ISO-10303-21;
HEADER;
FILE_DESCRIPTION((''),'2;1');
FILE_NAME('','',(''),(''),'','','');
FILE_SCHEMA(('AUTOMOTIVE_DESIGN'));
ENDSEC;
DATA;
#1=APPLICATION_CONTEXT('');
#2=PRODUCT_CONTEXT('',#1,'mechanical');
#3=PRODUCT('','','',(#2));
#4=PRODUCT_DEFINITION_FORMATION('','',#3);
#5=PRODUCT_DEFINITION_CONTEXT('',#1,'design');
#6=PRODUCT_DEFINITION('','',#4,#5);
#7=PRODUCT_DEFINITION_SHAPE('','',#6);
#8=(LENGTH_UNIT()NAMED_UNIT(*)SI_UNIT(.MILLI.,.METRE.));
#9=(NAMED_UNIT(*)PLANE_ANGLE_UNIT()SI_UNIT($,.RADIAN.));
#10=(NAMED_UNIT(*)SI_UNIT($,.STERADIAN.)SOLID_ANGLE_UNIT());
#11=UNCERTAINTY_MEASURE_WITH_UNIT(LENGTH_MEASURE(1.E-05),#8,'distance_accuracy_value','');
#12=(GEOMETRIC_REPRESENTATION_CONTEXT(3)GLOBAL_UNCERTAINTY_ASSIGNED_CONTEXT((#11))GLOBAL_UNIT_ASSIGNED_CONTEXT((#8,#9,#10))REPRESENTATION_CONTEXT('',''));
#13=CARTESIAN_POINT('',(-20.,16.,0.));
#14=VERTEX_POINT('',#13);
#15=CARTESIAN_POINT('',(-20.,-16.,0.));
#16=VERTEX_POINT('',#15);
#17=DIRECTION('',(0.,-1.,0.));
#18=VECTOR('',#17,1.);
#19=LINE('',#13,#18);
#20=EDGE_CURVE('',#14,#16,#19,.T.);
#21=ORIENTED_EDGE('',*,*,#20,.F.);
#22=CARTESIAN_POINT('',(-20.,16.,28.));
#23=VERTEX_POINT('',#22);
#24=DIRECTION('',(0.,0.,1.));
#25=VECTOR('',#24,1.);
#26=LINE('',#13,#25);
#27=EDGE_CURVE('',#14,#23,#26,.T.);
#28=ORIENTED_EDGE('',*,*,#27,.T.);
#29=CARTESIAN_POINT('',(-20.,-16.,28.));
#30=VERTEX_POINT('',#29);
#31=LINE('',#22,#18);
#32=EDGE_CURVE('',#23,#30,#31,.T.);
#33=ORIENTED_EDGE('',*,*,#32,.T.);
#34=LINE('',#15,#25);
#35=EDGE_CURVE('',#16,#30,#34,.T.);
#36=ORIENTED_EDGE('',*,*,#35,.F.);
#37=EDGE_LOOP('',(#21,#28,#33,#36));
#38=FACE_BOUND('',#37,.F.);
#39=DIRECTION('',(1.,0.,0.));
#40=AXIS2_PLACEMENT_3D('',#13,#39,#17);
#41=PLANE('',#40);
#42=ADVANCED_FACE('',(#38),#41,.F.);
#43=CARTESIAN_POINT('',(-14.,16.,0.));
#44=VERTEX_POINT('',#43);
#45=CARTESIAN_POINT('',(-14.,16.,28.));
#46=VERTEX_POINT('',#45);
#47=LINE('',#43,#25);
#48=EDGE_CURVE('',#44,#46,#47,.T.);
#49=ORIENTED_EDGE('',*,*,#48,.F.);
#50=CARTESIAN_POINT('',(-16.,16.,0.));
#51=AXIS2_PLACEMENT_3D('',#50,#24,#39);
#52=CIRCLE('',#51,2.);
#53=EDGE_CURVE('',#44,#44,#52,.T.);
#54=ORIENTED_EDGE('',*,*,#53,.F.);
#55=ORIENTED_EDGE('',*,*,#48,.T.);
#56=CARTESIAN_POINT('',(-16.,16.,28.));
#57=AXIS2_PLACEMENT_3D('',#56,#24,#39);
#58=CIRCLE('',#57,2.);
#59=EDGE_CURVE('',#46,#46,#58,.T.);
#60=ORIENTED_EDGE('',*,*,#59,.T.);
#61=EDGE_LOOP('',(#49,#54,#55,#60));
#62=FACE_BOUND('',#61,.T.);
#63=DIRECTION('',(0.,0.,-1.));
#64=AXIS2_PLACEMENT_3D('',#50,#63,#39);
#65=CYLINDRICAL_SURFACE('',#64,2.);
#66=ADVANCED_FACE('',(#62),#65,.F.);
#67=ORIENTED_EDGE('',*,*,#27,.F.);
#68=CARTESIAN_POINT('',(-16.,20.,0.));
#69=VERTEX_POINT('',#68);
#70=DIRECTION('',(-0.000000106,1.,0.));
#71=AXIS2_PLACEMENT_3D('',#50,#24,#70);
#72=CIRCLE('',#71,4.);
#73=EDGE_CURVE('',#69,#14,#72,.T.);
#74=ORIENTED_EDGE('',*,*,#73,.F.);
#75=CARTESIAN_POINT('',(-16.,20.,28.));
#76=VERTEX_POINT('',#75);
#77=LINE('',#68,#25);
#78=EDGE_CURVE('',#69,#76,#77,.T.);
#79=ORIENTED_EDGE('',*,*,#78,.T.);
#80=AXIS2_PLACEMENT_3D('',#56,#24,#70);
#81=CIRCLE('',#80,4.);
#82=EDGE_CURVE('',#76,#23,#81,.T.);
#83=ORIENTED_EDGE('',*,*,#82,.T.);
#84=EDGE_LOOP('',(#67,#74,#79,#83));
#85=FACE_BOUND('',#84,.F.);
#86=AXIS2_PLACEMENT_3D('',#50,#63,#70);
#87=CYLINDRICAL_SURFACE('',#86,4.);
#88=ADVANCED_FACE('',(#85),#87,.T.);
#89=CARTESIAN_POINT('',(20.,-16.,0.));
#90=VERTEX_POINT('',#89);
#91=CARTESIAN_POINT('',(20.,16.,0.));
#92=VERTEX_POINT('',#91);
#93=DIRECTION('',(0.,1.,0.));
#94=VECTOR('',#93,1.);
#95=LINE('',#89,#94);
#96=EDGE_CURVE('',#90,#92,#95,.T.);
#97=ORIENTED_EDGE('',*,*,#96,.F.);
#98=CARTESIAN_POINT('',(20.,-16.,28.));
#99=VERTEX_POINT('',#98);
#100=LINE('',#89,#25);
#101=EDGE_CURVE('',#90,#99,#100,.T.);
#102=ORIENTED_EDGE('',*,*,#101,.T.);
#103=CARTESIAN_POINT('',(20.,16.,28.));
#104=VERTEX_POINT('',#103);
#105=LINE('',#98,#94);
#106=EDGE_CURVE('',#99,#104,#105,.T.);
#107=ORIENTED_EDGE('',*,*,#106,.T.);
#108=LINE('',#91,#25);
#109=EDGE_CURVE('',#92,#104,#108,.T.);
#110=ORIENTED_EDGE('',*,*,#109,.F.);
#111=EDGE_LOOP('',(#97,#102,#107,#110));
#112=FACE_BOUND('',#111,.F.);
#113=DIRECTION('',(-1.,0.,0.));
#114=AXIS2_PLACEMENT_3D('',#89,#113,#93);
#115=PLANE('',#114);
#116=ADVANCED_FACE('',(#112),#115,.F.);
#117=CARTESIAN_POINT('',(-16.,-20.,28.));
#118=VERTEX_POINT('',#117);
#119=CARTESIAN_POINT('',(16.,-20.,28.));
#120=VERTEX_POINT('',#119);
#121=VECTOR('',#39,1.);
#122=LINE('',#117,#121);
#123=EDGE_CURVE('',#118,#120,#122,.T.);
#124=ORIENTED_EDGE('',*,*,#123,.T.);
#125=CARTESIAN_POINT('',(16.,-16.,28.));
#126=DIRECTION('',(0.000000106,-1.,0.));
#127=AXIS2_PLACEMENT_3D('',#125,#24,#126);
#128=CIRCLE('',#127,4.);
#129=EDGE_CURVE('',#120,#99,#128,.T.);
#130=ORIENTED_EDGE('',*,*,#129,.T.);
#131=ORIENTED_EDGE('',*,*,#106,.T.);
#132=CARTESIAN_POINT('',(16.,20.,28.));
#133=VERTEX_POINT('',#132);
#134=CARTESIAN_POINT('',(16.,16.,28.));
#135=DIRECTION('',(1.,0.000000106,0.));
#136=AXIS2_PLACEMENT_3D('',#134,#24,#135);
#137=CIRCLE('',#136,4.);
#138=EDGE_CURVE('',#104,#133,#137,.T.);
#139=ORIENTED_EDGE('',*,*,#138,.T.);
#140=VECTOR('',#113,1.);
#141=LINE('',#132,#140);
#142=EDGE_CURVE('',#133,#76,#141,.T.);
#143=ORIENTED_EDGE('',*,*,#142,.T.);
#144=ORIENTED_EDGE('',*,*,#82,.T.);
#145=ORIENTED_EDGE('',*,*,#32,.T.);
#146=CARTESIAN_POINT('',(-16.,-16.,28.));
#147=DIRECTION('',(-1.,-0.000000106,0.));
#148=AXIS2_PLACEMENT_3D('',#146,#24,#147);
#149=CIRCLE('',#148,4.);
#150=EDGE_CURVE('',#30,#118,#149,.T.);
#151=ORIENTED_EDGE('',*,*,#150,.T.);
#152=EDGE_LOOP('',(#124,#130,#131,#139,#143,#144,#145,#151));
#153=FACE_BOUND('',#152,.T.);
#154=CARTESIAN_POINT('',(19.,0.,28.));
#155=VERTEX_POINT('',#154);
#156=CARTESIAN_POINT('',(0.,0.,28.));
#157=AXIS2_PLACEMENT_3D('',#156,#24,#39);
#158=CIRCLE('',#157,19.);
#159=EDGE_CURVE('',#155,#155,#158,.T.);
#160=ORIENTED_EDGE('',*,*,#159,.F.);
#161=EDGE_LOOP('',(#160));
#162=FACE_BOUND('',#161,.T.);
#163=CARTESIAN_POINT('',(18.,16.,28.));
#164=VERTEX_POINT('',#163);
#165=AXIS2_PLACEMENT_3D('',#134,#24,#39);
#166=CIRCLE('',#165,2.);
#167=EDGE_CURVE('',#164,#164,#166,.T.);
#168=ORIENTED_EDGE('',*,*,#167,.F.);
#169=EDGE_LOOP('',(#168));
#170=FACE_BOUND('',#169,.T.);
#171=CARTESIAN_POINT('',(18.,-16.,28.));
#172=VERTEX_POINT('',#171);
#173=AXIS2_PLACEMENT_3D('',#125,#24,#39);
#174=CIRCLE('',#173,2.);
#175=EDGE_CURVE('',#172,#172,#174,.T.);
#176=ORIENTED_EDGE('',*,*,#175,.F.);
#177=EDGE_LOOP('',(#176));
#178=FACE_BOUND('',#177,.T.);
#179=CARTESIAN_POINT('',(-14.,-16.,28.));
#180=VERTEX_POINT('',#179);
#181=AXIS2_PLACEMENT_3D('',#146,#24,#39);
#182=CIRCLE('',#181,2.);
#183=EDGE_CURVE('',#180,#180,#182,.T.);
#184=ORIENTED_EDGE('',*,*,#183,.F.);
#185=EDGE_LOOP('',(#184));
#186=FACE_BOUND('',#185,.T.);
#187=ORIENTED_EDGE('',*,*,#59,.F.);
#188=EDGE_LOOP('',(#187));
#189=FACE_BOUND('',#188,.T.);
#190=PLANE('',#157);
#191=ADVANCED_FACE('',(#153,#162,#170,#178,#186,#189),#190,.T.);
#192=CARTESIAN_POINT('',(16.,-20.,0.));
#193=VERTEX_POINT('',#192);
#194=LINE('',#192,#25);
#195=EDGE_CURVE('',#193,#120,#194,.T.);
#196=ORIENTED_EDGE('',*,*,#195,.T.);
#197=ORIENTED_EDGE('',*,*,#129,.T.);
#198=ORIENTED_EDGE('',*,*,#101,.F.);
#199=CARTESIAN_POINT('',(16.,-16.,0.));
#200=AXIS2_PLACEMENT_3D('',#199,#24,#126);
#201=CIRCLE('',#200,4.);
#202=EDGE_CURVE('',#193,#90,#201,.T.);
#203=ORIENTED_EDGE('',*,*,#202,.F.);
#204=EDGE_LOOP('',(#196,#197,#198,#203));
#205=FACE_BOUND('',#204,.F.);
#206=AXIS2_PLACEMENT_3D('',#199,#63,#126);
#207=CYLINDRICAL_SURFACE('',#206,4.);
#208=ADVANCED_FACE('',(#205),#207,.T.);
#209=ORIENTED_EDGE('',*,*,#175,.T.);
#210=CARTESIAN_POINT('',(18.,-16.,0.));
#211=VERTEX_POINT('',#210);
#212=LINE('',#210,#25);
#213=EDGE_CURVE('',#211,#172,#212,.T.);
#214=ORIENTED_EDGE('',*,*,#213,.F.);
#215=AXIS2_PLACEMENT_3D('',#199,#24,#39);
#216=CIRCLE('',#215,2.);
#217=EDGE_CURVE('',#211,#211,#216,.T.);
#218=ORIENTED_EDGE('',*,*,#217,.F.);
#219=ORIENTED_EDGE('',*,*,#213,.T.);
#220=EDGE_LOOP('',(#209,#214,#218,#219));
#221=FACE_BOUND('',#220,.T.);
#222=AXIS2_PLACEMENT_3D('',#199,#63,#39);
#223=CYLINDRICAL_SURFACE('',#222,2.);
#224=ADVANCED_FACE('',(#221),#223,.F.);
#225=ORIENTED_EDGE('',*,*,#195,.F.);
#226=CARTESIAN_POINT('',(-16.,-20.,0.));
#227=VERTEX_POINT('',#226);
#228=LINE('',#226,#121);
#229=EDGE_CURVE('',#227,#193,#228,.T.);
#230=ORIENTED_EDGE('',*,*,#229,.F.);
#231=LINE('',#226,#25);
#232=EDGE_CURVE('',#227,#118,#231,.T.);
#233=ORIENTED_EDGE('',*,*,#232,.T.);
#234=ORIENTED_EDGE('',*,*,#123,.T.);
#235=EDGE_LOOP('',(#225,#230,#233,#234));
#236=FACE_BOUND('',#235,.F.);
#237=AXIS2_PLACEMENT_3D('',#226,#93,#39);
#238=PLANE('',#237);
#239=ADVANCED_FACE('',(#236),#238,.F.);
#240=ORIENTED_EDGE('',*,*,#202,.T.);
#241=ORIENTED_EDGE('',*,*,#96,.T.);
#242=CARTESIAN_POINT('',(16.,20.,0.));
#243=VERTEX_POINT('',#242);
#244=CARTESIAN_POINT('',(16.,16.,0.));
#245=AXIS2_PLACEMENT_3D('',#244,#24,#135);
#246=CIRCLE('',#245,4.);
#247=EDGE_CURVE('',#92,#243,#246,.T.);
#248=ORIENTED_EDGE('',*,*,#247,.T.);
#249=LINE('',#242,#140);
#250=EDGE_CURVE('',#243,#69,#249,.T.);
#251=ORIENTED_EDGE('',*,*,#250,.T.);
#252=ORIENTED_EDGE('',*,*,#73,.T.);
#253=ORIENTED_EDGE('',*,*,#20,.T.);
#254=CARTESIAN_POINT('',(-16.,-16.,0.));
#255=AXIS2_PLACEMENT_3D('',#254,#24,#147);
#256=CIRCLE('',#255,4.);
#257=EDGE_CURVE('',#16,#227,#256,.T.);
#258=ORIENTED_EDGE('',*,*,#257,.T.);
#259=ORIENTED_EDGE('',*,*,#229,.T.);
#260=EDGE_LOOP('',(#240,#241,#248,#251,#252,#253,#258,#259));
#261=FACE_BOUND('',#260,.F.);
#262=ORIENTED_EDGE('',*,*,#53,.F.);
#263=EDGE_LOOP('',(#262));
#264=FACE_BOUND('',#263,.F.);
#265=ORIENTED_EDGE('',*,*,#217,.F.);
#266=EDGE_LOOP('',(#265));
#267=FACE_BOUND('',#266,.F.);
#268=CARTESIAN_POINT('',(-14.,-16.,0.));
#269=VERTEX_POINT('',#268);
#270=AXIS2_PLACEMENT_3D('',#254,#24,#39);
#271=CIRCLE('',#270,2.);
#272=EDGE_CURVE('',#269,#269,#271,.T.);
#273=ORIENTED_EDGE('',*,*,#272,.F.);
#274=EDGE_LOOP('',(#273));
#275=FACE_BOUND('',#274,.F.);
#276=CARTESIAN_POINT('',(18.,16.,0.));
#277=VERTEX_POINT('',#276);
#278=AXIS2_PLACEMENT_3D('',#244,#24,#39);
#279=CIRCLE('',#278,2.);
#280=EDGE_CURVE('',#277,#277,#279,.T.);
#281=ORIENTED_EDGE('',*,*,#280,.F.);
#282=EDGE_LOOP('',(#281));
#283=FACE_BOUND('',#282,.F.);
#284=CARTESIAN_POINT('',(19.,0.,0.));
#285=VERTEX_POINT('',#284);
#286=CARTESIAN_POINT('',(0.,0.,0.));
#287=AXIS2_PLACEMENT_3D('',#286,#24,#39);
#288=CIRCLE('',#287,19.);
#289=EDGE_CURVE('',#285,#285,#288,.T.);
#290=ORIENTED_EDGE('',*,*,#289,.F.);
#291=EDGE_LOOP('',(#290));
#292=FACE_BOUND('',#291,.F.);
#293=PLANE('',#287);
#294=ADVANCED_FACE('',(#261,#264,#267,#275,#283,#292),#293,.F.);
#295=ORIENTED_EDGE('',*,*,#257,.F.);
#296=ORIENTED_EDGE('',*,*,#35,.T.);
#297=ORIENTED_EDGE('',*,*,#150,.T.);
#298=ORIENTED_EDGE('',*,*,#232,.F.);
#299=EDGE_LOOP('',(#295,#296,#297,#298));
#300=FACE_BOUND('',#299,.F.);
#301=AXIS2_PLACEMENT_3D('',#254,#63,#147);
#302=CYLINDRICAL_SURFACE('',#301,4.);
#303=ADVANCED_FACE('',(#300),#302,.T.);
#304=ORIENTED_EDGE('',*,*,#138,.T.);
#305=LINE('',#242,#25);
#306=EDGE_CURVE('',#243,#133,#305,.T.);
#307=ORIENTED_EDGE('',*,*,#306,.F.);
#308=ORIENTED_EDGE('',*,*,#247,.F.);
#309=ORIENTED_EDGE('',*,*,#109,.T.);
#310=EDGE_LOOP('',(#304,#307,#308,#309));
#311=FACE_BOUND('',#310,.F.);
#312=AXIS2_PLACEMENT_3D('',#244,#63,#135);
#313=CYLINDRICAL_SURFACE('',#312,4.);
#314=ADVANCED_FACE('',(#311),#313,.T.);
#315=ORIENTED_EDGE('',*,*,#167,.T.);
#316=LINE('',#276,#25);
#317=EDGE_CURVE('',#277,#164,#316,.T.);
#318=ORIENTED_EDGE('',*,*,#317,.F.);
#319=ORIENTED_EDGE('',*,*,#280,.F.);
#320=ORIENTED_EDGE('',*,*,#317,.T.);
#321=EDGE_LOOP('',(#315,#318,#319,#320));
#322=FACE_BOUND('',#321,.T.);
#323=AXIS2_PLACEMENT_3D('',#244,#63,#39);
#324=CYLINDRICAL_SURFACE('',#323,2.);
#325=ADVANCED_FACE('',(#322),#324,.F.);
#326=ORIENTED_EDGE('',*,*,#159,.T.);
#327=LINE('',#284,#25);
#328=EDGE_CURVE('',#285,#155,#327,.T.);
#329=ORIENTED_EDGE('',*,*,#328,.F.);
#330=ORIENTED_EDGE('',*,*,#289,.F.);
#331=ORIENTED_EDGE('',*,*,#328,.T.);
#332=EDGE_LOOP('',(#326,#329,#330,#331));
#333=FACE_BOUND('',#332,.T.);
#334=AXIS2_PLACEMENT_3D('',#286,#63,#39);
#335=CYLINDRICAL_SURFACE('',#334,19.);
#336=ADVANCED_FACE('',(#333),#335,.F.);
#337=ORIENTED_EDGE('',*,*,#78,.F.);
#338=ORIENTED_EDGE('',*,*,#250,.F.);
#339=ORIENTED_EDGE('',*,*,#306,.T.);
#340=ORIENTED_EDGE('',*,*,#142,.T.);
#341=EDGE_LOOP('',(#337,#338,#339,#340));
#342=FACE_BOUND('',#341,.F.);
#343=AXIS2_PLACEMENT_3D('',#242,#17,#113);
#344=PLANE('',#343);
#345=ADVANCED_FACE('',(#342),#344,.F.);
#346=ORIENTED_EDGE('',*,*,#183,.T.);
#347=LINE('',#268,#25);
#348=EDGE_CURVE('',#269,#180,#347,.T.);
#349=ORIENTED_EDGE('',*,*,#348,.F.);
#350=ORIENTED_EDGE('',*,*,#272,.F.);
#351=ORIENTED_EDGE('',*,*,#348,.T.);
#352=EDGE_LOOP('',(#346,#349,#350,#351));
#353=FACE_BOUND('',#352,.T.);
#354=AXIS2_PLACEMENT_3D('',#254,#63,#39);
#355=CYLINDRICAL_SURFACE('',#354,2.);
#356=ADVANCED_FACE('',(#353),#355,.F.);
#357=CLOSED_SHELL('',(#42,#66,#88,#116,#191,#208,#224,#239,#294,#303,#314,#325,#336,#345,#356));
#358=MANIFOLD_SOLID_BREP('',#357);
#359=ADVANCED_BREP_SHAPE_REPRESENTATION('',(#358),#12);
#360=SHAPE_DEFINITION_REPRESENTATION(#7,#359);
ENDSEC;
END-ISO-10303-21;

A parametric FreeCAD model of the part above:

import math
import FreeCAD as App
import Part
import Sketcher

V = App.Vector
Q = App.Units.Quantity

doc = App.newDocument("Part")
body = doc.addObject("PartDesign::Body", "Body")

# Sketch on XY plane
sketch1 = body.newObject("Sketcher::SketchObject", "Sketch")
sketch1.AttachmentSupport = (doc.getObject("XY_Plane"), [""])
sketch1.MapMode = "FlatFace"
sketch1.addGeometry([
    Part.ArcOfCircle(Part.Circle(V(-16, -16, 0), V(0, 0, 1), 4), math.radians(-180), math.radians(-90)),  # 0
    Part.LineSegment(V(-16, -20, 0), V(16, -20, 0)),  # 1
    Part.ArcOfCircle(Part.Circle(V(16, -16, 0), V(0, 0, 1), 4), math.radians(-90), math.radians(0)),  # 2
    Part.LineSegment(V(20, -16, 0), V(20, 16, 0)),  # 3
    Part.ArcOfCircle(Part.Circle(V(16, 16, 0), V(0, 0, 1), 4), math.radians(0), math.radians(90)),  # 4
    Part.LineSegment(V(16, 20, 0), V(-16, 20, 0)),  # 5
    Part.ArcOfCircle(Part.Circle(V(-16, 16, 0), V(0, 0, 1), 4), math.radians(90), math.radians(180)),  # 6
    Part.LineSegment(V(-20, 16, 0), V(-20, -16, 0)),  # 7
    Part.Circle(V(-16, -16, 0), V(0, 0, 1), 2),  # 8
    Part.Circle(V(16, -16, 0), V(0, 0, 1), 2),  # 9
    Part.Circle(V(-16, 16, 0), V(0, 0, 1), 2),  # 10
    Part.Circle(V(0, 0, 0), V(0, 0, 1), 19),  # 11
    Part.Circle(V(16, 16, 0), V(0, 0, 1), 2),  # 12
], False)
sketch1.addConstraint([
    Sketcher.Constraint("Tangent", 0, 2, 1, 1),
    Sketcher.Constraint("Tangent", 1, 2, 2, 1),
    Sketcher.Constraint("Tangent", 2, 2, 3, 1),
    Sketcher.Constraint("Tangent", 3, 2, 4, 1),
    Sketcher.Constraint("Tangent", 4, 2, 5, 1),
    Sketcher.Constraint("Tangent", 5, 2, 6, 1),
    Sketcher.Constraint("Tangent", 6, 2, 7, 1),
    Sketcher.Constraint("Tangent", 7, 2, 0, 1),
    Sketcher.Constraint("Horizontal", 1),
    Sketcher.Constraint("Vertical", 3),
    Sketcher.Constraint("Horizontal", 5),
    Sketcher.Constraint("Vertical", 7),
    Sketcher.Constraint("Coincident", 11, 3, -1, 1),
    Sketcher.Constraint("Coincident", 8, 3, 0, 3),
    Sketcher.Constraint("Coincident", 9, 3, 2, 3),
    Sketcher.Constraint("Coincident", 10, 3, 6, 3),
    Sketcher.Constraint("Coincident", 12, 3, 4, 3),
    Sketcher.Constraint("Equal", 0, 2),
    Sketcher.Constraint("Equal", 2, 4),
    Sketcher.Constraint("Equal", 4, 6),
    Sketcher.Constraint("Equal", 8, 9),
    Sketcher.Constraint("Equal", 9, 10),
    Sketcher.Constraint("Equal", 10, 12),
    Sketcher.Constraint("Symmetric", 0, 3, 4, 3, -1, 1),
    Sketcher.Constraint("Equal", 5, 3),
    Sketcher.Constraint("Diameter", 8, Q("4 mm")),
    Sketcher.Constraint("Diameter", 11, Q("38 mm")),
    Sketcher.Constraint("Radius", 0, Q("4 mm")),
    Sketcher.Constraint("DistanceX", 1, 1, 1, 2, Q("32 mm")),
])
pad1 = body.newObject("PartDesign::Pad", "Pad")
pad1.Profile = sketch1
pad1.Length = 28

doc.recompute()
